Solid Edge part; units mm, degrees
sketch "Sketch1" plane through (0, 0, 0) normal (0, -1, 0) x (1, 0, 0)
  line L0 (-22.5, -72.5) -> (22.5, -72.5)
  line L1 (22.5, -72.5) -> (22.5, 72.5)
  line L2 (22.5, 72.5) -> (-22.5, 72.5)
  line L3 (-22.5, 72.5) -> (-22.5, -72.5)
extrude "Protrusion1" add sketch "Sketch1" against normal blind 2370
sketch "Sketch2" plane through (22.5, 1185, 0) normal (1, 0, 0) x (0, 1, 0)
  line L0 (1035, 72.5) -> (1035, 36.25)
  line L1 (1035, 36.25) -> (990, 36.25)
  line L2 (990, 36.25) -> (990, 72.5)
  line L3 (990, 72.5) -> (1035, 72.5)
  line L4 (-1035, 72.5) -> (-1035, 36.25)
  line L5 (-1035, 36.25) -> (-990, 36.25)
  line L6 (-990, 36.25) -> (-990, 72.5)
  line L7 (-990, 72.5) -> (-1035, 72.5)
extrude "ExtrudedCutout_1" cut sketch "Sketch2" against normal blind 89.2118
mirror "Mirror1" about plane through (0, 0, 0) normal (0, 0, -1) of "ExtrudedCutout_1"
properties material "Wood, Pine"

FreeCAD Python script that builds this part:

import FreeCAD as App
import Part
import Sketcher

V = App.Vector
Q = App.Units.Quantity


def add_polygon(sketch, points):
    """Adds a closed chain of lines whose ends are joined by coincident constraints."""
    first, n = sketch.GeometryCount, len(points)
    for a, b in zip(points, points[1:] + points[:1]):
        sketch.addGeometry(Part.LineSegment(App.Vector(*a, 0), App.Vector(*b, 0)), False)
    for i in range(n):
        sketch.addConstraint(Sketcher.Constraint("Coincident", first + i, 2, first + (i + 1) % n, 1))

doc = App.newDocument("Part")
body = doc.addObject("PartDesign::Body", "Body")

# Sketch on XZ plane
sketch1 = body.newObject("Sketcher::SketchObject", "Sketch")
sketch1.AttachmentSupport = (doc.getObject("XZ_Plane"), [""])
sketch1.MapMode = "FlatFace"
add_polygon(sketch1, [(-22, 72), (-22, -72), (22, -72), (22, 72)])  # lines 0-3
sketch1.addConstraint([
    Sketcher.Constraint("Vertical", 0),
    Sketcher.Constraint("Horizontal", 1),
    Sketcher.Constraint("Vertical", 2),
    Sketcher.Constraint("Horizontal", 3),
    Sketcher.Constraint("Symmetric", 0, 2, 2, 2, -1, 1),
    Sketcher.Constraint("DistanceX", 1, 1, 1, 2, Q("45 mm")),
    Sketcher.Constraint("DistanceY", 0, 2, 0, 1, Q("145 mm")),
])
pad1 = body.newObject("PartDesign::Pad", "Pad")
pad1.Profile = sketch1
pad1.Length = 2370
pad1.Reversed = True

# Sketch on YZ plane
sketch2 = body.newObject("Sketcher::SketchObject", "Sketch001")
sketch2.AttachmentSupport = (doc.getObject("YZ_Plane"), [""])
sketch2.MapMode = "FlatFace"
sketch2.AttachmentOffset = App.Placement(V(0, 0, 22.5), App.Rotation())
add_polygon(sketch2, [(2220, 36), (2220, 72), (2175, 72), (2175, 36)])  # lines 0-3
add_polygon(sketch2, [(195, 72), (150, 72), (150, 36), (195, 36)])  # lines 4-7
sketch2.addConstraint([
    Sketcher.Constraint("Vertical", 0),
    Sketcher.Constraint("Horizontal", 1),
    Sketcher.Constraint("Vertical", 2),
    Sketcher.Constraint("Horizontal", 3),
    Sketcher.Constraint("Horizontal", 4),
    Sketcher.Constraint("Vertical", 5),
    Sketcher.Constraint("Horizontal", 6),
    Sketcher.Constraint("Vertical", 7),
    Sketcher.Constraint("Horizontal", 1, 2, 4, 2),
    Sketcher.Constraint("Horizontal", 3, 2, 5, 2),
    Sketcher.Constraint("Equal", 3, 4),
    Sketcher.Constraint("DistanceX", 1, 2, 1, 1, Q("45 mm")),
    Sketcher.Constraint("DistanceX", -1, 1, 0, 2, Q("2220 mm")),
    Sketcher.Constraint("DistanceX", -1, 1, 4, 2, Q("150 mm")),
    Sketcher.Constraint("DistanceY", 0, 1, 0, 2, Q("36.25 mm")),
    Sketcher.Constraint("DistanceY", -1, 1, 0, 2, Q("72.5 mm")),
])
pocket1 = body.newObject("PartDesign::Pocket", "Pocket")
pocket1.Profile = sketch2
pocket1.Length = 89.2118
doc.recompute()

mirrored = body.newObject("PartDesign::Mirrored", "Mirrored")
mirrored.Originals = [pocket1]
mirrored.MirrorPlane = (doc.getObject("XY_Plane"), [""])
body.Tip = mirrored

doc.recompute()
